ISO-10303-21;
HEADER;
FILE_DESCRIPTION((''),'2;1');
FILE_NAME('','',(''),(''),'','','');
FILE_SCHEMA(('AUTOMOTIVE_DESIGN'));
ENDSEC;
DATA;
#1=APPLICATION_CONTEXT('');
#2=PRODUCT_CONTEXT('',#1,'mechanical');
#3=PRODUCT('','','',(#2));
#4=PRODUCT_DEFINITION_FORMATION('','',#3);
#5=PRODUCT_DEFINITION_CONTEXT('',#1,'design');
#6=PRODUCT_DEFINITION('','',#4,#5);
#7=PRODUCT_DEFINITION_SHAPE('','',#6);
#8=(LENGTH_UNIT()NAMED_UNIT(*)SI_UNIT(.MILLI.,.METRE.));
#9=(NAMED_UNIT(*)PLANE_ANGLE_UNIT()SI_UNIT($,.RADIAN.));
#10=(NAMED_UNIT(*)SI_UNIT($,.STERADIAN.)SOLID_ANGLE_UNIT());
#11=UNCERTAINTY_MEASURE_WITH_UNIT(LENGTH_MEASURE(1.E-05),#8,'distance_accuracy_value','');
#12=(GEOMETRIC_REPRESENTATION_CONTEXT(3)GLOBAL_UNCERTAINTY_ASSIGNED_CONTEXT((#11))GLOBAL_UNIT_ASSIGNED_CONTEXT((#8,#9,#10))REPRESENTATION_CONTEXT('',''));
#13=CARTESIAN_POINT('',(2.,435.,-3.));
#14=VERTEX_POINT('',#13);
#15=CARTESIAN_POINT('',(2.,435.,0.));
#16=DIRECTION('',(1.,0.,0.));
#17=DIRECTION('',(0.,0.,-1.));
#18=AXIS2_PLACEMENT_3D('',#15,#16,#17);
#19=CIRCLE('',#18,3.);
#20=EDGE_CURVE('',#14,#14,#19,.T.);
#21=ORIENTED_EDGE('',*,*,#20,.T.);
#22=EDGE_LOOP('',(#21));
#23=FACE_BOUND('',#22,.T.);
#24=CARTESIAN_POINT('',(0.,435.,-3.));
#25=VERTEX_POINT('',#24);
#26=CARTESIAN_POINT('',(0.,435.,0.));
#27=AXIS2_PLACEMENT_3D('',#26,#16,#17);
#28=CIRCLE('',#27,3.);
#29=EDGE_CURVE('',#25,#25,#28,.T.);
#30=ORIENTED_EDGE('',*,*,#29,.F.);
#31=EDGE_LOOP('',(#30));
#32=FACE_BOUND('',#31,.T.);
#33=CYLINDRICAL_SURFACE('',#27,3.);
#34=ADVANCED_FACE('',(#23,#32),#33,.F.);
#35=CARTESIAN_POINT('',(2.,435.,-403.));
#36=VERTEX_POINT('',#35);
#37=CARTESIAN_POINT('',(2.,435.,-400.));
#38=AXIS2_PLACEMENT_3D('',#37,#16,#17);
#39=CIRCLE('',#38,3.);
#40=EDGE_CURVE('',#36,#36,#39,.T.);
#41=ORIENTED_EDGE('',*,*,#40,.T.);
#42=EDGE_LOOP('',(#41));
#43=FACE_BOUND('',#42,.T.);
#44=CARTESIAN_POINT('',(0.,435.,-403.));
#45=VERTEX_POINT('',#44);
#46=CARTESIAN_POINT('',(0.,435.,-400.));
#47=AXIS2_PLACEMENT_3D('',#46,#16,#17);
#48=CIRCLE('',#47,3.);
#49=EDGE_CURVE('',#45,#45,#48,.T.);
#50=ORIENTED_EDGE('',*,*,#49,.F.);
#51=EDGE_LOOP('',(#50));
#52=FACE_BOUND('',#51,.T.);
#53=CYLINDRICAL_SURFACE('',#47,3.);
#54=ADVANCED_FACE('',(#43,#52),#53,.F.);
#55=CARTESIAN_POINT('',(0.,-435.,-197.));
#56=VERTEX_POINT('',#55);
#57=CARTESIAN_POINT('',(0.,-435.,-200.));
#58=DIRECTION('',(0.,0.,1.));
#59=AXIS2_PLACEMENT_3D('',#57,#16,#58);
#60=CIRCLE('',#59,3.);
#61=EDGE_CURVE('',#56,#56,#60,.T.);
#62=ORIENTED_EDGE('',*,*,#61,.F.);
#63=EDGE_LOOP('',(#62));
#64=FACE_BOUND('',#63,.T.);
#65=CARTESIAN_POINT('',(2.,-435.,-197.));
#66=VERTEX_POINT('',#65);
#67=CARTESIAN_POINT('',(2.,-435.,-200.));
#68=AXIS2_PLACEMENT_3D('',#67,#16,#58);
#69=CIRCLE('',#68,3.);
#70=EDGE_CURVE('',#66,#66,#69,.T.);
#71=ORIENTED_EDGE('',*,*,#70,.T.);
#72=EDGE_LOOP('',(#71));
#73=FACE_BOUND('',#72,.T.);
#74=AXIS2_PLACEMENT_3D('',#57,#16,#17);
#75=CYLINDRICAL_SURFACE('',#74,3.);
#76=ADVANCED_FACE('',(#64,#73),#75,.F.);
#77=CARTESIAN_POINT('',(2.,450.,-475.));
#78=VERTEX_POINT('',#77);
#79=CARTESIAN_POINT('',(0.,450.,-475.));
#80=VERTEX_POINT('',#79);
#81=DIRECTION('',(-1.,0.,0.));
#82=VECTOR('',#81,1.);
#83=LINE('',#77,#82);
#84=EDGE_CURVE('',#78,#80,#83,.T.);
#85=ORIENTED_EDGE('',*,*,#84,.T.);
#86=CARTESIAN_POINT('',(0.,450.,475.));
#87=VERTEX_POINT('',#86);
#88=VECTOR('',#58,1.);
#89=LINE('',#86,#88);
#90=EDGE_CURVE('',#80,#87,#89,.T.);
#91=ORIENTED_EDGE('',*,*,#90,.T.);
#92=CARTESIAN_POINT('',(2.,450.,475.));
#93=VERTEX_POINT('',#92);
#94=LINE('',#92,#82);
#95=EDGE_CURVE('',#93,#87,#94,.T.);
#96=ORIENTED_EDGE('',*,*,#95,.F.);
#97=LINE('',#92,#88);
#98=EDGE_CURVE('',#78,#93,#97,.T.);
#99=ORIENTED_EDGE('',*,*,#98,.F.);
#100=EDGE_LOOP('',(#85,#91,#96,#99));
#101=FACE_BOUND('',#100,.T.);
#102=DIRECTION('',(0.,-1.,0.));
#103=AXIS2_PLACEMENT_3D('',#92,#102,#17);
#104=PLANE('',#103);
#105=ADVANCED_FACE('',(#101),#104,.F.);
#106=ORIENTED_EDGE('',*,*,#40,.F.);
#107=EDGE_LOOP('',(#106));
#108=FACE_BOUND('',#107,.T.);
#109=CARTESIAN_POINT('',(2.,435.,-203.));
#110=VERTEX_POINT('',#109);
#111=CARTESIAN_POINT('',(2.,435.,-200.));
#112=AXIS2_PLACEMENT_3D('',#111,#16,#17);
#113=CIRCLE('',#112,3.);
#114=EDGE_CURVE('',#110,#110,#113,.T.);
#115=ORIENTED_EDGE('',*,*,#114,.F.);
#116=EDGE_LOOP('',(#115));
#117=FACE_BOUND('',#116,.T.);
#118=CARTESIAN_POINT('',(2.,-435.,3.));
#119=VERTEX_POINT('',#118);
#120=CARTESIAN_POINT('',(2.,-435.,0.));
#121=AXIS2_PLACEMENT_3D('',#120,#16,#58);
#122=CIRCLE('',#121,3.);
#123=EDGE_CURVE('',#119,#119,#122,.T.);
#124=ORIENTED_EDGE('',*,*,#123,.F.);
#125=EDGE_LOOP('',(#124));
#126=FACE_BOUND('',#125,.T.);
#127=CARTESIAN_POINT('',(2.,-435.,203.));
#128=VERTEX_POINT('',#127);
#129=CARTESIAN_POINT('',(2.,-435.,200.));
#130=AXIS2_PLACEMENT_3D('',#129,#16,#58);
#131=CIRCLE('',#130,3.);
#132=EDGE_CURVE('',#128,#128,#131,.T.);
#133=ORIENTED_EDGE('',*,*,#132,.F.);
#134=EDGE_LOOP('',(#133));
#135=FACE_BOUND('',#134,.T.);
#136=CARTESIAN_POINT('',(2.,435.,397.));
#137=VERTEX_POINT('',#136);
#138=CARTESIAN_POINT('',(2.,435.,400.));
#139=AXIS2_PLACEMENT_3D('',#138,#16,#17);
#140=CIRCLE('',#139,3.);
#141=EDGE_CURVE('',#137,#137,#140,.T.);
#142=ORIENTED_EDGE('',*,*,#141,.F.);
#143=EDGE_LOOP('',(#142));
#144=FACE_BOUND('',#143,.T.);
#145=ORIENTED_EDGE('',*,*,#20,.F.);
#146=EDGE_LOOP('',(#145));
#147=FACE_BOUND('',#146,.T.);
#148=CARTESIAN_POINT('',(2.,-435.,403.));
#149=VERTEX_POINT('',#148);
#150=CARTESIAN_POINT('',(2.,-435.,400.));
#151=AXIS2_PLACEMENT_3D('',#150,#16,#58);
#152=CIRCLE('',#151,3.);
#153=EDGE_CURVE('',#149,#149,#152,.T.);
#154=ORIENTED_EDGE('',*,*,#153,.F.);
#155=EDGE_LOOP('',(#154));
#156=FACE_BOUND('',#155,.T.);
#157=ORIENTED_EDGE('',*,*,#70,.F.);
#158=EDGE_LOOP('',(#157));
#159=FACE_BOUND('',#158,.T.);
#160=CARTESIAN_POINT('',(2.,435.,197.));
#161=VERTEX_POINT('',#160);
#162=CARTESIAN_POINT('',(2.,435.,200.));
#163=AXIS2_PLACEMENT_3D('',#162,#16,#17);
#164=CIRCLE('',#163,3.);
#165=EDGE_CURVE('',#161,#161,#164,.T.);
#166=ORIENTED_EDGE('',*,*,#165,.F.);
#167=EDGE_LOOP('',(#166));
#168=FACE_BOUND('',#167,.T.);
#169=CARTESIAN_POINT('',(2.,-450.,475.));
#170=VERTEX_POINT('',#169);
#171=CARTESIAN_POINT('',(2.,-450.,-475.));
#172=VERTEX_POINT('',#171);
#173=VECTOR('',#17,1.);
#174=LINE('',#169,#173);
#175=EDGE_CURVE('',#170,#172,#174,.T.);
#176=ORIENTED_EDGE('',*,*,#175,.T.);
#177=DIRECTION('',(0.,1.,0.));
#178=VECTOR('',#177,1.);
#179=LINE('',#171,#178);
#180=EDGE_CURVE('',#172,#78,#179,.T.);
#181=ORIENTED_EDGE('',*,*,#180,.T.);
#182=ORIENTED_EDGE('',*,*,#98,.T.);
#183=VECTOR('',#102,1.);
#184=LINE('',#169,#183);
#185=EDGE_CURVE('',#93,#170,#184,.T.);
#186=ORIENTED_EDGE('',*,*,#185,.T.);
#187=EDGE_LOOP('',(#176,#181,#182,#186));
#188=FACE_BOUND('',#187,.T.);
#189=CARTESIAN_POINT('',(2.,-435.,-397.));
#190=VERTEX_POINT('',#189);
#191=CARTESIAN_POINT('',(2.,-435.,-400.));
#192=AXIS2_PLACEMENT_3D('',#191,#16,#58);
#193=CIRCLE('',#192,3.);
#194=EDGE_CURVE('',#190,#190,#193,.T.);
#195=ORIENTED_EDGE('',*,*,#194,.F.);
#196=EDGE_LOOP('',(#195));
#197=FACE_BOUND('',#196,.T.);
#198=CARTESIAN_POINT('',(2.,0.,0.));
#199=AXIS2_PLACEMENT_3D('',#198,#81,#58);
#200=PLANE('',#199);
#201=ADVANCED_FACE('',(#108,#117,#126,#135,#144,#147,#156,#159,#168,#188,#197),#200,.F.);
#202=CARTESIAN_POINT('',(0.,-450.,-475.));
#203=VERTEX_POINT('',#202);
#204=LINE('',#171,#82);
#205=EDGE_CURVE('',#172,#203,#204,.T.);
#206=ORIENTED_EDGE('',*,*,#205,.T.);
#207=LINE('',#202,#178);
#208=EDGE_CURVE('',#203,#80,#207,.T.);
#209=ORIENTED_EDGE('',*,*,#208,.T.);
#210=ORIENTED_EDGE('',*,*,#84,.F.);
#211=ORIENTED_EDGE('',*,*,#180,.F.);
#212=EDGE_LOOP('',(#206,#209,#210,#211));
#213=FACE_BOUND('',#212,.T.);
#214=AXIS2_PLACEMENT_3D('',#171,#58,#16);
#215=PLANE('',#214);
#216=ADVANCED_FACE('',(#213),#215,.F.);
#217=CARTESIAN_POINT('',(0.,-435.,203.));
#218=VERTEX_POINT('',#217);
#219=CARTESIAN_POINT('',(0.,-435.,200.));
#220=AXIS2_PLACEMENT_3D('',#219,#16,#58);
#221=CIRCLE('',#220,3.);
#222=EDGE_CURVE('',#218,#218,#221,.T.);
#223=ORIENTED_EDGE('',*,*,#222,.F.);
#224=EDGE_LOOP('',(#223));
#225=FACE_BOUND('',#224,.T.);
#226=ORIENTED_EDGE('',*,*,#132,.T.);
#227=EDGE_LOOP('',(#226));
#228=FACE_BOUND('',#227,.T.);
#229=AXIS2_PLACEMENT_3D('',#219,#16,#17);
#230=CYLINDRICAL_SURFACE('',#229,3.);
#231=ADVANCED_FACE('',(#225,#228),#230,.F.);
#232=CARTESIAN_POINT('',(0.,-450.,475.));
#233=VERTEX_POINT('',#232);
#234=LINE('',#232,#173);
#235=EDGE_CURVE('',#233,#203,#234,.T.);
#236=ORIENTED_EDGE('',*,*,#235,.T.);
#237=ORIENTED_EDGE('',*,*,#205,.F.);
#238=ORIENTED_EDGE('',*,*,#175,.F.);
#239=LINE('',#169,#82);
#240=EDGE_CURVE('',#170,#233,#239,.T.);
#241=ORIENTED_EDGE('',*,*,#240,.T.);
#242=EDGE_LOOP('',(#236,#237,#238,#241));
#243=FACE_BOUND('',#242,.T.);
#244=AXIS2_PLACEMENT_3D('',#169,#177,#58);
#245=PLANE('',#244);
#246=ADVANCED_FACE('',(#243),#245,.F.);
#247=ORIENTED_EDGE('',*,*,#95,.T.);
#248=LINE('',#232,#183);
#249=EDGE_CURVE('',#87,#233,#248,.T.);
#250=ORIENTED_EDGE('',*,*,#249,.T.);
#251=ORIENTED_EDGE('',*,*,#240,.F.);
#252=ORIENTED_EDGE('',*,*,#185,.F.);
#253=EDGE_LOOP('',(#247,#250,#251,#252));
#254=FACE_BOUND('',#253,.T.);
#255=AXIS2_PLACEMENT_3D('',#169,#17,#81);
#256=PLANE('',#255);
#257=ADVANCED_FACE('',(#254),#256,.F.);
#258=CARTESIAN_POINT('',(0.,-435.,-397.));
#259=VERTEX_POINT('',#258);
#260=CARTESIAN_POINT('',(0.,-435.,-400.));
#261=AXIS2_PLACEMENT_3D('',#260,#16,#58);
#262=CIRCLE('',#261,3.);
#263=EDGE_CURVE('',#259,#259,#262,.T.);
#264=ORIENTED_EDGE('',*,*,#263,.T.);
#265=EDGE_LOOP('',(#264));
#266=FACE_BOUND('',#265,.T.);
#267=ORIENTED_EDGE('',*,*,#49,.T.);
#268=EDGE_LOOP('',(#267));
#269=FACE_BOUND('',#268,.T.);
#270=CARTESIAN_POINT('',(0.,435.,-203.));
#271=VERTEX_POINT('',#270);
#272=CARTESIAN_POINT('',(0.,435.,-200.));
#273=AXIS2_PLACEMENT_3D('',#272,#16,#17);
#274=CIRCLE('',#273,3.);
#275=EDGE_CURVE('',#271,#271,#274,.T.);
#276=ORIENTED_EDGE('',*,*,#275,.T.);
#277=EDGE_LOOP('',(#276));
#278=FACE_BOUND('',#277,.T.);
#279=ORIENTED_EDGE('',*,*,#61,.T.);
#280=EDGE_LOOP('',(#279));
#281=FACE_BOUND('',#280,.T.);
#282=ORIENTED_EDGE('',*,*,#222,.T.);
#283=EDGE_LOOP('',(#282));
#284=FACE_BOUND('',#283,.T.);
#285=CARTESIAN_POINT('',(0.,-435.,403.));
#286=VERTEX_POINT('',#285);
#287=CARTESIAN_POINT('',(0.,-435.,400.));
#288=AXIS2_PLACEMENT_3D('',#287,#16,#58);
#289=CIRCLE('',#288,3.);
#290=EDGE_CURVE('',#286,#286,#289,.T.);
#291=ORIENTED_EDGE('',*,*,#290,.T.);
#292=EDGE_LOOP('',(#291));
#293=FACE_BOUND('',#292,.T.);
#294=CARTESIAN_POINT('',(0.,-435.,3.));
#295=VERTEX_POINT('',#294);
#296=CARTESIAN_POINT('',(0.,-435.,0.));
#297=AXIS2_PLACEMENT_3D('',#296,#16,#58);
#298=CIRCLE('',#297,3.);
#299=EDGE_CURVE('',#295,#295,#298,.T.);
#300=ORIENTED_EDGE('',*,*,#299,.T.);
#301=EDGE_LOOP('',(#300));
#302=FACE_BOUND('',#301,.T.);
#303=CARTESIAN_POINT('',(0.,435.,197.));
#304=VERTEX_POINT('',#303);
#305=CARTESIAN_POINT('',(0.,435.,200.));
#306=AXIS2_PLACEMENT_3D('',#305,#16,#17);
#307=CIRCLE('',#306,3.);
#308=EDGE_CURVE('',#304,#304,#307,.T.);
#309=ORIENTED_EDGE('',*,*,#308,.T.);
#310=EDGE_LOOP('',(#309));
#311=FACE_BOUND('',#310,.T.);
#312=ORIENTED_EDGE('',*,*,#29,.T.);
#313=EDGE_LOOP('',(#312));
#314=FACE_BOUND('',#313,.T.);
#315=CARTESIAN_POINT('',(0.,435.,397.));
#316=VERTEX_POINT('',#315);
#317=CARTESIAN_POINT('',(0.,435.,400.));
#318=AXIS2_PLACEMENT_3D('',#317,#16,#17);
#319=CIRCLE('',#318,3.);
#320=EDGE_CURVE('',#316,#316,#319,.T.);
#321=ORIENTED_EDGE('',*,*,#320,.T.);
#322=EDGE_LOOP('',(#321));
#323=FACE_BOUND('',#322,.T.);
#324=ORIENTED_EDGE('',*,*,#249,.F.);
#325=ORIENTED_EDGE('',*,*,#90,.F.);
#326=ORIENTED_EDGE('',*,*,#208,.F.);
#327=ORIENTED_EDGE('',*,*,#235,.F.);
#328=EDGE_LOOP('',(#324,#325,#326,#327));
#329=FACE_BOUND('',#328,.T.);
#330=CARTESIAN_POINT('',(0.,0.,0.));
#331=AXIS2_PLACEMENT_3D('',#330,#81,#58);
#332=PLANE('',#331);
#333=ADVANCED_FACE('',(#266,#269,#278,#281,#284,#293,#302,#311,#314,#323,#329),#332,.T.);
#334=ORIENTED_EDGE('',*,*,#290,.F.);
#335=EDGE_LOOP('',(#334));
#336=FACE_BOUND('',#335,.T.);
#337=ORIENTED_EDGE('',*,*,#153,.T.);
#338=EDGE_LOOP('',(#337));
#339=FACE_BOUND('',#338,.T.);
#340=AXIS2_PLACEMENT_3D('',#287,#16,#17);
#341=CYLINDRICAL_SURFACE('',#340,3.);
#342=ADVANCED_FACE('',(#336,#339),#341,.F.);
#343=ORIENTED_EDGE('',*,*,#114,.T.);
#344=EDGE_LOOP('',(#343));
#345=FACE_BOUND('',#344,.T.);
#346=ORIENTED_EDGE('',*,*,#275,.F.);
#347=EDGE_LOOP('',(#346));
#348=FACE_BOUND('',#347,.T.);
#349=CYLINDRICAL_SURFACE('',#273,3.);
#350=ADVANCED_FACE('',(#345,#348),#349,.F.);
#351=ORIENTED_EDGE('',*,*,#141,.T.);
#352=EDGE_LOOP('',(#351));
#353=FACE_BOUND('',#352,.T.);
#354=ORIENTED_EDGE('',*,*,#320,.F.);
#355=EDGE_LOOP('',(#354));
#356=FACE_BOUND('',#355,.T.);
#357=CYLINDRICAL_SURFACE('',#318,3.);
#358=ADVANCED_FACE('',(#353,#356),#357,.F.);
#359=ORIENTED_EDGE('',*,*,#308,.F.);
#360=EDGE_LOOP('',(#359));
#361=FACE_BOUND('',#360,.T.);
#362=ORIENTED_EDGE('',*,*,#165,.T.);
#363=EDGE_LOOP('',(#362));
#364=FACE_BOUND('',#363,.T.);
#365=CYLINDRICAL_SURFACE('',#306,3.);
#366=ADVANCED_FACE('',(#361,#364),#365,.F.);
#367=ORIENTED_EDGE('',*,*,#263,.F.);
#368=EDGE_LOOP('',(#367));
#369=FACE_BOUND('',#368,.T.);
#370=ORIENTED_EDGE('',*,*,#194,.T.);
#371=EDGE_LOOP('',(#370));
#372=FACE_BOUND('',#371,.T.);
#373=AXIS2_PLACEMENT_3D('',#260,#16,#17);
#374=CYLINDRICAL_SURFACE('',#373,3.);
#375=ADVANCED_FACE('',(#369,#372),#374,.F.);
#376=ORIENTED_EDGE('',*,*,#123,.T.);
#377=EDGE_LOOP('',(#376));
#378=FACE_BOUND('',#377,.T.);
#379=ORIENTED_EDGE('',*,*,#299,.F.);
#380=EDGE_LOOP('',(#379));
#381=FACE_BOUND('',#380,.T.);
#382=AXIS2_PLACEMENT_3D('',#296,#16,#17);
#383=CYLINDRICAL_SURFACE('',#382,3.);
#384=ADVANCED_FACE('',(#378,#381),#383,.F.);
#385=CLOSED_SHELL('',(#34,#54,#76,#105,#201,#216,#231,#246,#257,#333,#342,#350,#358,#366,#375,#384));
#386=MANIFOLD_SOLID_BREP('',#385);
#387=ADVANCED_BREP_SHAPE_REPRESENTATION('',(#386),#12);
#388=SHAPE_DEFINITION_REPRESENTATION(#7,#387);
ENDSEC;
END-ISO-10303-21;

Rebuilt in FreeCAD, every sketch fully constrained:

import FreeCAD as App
import Part
import Sketcher
from FreeCAD import Vector
Q = App.Units.Quantity

doc = App.newDocument("Part")
body = doc.addObject("PartDesign::Body", "Body")

# Sketch on YZ plane
sketch1 = body.newObject("Sketcher::SketchObject", "Sketch")
sketch1.AttachmentSupport = (doc.getObject("YZ_Plane"), [""])
sketch1.MapMode = "FlatFace"
sketch1.addGeometry(Part.LineSegment(Vector(450, 475, 0), Vector(-450, 475, 0)), False)
sketch1.addGeometry(Part.LineSegment(Vector(-450, 475, 0), Vector(-450, -475, 0)), False)
sketch1.addGeometry(Part.LineSegment(Vector(-450, -475, 0), Vector(450, -475, 0)), False)
sketch1.addGeometry(Part.LineSegment(Vector(450, -475, 0), Vector(450, 475, 0)), False)
sketch1.addConstraint(Sketcher.Constraint("Coincident", 0, 2, 1, 1))
sketch1.addConstraint(Sketcher.Constraint("Coincident", 1, 2, 2, 1))
sketch1.addConstraint(Sketcher.Constraint("Coincident", 2, 2, 3, 1))
sketch1.addConstraint(Sketcher.Constraint("Coincident", 3, 2, 0, 1))
sketch1.addConstraint(Sketcher.Constraint("Horizontal", 0))
sketch1.addConstraint(Sketcher.Constraint("Vertical", 1))
sketch1.addConstraint(Sketcher.Constraint("Horizontal", 2))
sketch1.addConstraint(Sketcher.Constraint("Vertical", 3))
sketch1.addConstraint(Sketcher.Constraint("Symmetric", 0, 2, 2, 2, -1, 1))
sketch1.addConstraint(Sketcher.Constraint("DistanceX", 0, 2, 0, 1, Q("900 mm")))
sketch1.addConstraint(Sketcher.Constraint("DistanceY", 1, 2, 1, 1, Q("950 mm")))
pad1 = body.newObject("PartDesign::Pad", "Pad")
pad1.Profile = sketch1
pad1.Length = 2

# Sketch on YZ plane
sketch2 = body.newObject("Sketcher::SketchObject", "Sketch001")
sketch2.AttachmentSupport = (doc.getObject("YZ_Plane"), [""])
sketch2.MapMode = "FlatFace"
sketch2.AttachmentOffset = App.Placement(Vector(0, 0, 2), App.Rotation())
sketch2.addGeometry(Part.Circle(Vector(435, 400, 0), Vector(0, 0, 1), 3), False)
sketch2.addGeometry(Part.Circle(Vector(435, 200, 0), Vector(0, 0, 1), 3), False)
sketch2.addGeometry(Part.Circle(Vector(435, 0, 0), Vector(0, 0, 1), 3), False)
sketch2.addGeometry(Part.Circle(Vector(435, -200, 0), Vector(0, 0, 1), 3), False)
sketch2.addGeometry(Part.Circle(Vector(435, -400, 0), Vector(0, 0, 1), 3), False)
sketch2.addGeometry(Part.Circle(Vector(-435, -400, 0), Vector(0, 0, 1), 3), False)
sketch2.addGeometry(Part.Circle(Vector(-435, 0, 0), Vector(0, 0, 1), 3), False)
sketch2.addGeometry(Part.Circle(Vector(-435, -200, 0), Vector(0, 0, 1), 3), False)
sketch2.addGeometry(Part.Circle(Vector(-435, 200, 0), Vector(0, 0, 1), 3), False)
sketch2.addGeometry(Part.Circle(Vector(-435, 400, 0), Vector(0, 0, 1), 3), False)
sketch2.addConstraint(Sketcher.Constraint("Equal", 0, 1))
sketch2.addConstraint(Sketcher.Constraint("Equal", 1, 2))
sketch2.addConstraint(Sketcher.Constraint("Equal", 2, 3))
sketch2.addConstraint(Sketcher.Constraint("Equal", 3, 4))
sketch2.addConstraint(Sketcher.Constraint("Equal", 4, 5))
sketch2.addConstraint(Sketcher.Constraint("Equal", 5, 6))
sketch2.addConstraint(Sketcher.Constraint("Equal", 6, 7))
sketch2.addConstraint(Sketcher.Constraint("Equal", 7, 8))
sketch2.addConstraint(Sketcher.Constraint("Equal", 8, 9))
sketch2.addConstraint(Sketcher.Constraint("Symmetric", 0, 3, 5, 3, -1, 1))
sketch2.addConstraint(Sketcher.Constraint("Symmetric", 2, 3, 6, 3, -1, 1))
sketch2.addConstraint(Sketcher.Constraint("Symmetric", 1, 3, 7, 3, -1, 1))
sketch2.addConstraint(Sketcher.Constraint("Symmetric", 3, 3, 8, 3, -1, 1))
sketch2.addConstraint(Sketcher.Constraint("Symmetric", 4, 3, 9, 3, -1, 1))
sketch2.addConstraint(Sketcher.Constraint("Symmetric", 4, 3, 5, 3, -2))
sketch2.addConstraint(Sketcher.Constraint("Symmetric", 3, 3, 7, 3, -2))
sketch2.addConstraint(Sketcher.Constraint("PointOnObject", 2, 3, -1))
sketch2.addConstraint(Sketcher.Constraint("Vertical", 0, 3, 1, 3))
sketch2.addConstraint(Sketcher.Constraint("Vertical", 1, 3, 2, 3))
sketch2.addConstraint(Sketcher.Constraint("Diameter", 0, Q("6 mm")))
sketch2.addConstraint(Sketcher.Constraint("DistanceX", -1, 1, 0, 3, Q("435 mm")))
sketch2.addConstraint(Sketcher.Constraint("DistanceY", -1, 1, 0, 3, Q("400 mm")))
sketch2.addConstraint(Sketcher.Constraint("DistanceY", -1, 1, 1, 3, Q("200 mm")))
pocket1 = body.newObject("PartDesign::Pocket", "Pocket")
pocket1.Profile = sketch2
pocket1.Length = 2

doc.recompute()
